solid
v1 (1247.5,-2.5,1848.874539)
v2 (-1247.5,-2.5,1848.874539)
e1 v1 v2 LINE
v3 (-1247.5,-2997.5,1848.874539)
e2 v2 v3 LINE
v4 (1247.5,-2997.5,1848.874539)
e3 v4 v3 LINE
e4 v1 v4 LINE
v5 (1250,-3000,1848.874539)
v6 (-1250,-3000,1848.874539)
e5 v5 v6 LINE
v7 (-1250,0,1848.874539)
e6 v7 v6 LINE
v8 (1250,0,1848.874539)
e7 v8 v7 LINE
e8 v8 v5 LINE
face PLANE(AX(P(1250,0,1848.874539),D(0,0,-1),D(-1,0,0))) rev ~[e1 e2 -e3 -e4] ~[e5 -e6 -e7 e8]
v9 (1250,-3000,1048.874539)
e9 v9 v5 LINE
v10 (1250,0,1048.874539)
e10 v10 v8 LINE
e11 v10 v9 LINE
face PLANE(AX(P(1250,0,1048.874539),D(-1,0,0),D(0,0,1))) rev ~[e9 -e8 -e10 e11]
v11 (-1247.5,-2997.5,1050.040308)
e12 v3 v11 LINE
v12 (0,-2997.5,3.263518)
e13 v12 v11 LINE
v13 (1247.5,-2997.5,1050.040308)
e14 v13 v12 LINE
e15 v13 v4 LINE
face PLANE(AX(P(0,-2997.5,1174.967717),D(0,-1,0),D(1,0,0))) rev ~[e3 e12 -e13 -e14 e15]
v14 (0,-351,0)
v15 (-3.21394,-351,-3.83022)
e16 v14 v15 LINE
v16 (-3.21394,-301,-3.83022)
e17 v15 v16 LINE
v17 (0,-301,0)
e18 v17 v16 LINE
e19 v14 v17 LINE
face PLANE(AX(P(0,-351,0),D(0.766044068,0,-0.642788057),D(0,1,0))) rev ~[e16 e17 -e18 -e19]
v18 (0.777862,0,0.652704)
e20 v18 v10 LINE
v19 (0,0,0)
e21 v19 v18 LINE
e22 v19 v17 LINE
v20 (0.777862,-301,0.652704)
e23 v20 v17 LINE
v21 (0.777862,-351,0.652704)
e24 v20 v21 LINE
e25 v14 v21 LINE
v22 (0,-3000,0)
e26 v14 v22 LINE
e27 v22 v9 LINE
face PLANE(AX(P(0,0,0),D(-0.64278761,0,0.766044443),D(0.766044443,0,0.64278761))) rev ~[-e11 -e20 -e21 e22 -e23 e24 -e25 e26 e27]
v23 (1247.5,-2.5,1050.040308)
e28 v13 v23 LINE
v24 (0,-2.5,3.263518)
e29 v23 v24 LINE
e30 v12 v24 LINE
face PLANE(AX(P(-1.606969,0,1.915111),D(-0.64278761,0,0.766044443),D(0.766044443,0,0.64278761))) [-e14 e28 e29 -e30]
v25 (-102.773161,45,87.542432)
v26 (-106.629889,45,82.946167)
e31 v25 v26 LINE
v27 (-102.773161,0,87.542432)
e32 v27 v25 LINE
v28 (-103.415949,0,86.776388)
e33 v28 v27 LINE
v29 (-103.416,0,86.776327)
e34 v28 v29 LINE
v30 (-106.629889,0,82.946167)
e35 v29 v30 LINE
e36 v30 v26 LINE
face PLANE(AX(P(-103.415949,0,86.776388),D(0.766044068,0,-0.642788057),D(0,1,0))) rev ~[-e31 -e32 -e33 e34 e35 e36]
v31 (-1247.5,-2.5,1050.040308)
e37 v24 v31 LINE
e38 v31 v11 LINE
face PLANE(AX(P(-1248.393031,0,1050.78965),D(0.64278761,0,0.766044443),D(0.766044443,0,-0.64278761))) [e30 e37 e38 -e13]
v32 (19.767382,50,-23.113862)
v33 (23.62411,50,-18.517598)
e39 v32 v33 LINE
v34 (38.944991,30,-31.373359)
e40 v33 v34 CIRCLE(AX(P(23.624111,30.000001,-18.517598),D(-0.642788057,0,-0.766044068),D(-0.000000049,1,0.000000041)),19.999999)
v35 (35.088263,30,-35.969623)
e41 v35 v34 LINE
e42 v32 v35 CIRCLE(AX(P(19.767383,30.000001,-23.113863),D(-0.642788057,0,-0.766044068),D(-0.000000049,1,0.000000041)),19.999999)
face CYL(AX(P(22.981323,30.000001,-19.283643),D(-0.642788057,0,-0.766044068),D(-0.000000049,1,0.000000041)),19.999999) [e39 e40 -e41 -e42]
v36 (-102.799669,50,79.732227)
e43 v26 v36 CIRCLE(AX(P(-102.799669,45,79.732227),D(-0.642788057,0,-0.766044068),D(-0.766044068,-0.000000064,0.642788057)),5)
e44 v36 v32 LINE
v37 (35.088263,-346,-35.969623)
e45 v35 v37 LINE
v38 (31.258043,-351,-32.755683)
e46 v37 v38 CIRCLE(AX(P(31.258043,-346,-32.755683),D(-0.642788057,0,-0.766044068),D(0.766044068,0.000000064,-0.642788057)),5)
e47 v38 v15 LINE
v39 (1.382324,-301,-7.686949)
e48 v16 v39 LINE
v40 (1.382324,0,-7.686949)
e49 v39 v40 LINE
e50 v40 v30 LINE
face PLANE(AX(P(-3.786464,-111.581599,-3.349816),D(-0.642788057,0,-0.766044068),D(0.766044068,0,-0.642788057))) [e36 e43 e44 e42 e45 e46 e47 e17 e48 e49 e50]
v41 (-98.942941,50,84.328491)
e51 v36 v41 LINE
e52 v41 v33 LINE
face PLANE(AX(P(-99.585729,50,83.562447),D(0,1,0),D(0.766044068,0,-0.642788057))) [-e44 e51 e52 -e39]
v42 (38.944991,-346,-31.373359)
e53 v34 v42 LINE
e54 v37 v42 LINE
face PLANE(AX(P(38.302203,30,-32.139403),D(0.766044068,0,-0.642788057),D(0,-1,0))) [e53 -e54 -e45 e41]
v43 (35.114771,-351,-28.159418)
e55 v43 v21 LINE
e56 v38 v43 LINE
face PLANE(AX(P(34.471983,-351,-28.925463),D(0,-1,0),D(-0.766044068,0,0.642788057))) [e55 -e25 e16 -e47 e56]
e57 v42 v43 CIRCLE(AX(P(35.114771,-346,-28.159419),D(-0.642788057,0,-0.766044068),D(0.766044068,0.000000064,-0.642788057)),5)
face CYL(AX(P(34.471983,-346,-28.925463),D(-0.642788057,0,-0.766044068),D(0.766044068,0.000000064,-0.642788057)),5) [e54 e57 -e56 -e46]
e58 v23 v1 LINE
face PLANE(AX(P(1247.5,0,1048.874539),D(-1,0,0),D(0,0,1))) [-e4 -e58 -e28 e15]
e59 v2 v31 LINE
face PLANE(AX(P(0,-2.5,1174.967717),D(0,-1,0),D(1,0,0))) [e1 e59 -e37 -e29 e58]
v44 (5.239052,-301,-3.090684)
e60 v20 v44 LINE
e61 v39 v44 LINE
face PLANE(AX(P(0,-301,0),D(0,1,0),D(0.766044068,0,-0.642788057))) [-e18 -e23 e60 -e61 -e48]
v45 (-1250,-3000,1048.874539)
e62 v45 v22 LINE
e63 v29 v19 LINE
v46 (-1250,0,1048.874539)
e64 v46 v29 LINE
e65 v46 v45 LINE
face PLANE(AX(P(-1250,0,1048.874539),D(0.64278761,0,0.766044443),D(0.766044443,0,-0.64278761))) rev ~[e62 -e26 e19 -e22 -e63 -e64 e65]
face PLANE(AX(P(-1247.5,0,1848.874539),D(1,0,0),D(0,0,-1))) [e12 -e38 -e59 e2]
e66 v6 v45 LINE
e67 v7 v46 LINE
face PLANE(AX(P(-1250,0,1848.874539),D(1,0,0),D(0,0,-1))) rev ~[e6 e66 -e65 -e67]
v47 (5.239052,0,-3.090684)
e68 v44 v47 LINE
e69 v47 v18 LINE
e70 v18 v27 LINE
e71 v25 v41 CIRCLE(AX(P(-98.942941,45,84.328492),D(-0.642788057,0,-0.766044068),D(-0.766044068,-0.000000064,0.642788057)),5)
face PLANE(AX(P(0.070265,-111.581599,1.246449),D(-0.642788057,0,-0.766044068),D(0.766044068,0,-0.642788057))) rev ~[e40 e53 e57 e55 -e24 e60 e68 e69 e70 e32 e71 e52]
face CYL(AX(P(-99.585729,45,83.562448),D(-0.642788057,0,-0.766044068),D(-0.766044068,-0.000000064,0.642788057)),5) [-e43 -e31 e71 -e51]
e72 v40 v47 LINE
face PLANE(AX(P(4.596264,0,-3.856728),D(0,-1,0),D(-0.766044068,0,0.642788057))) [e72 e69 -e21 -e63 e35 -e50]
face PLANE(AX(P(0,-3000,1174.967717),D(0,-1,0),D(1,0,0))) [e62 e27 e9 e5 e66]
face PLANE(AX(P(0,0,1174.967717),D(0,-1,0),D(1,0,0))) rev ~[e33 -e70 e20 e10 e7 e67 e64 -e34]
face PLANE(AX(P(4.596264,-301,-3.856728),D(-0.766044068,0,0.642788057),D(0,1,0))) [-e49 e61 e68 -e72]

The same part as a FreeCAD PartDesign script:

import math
import FreeCAD as App
import Part
import Sketcher
from FreeCAD import Vector
Q = App.Units.Quantity


def faces_at(feature, points):
    """Names of the faces that lie closest to the given points."""
    faces = feature.Shape.Faces
    near = lambda p: min(range(len(faces)), key=lambda i: faces[i].distToShape(Part.Vertex(*p))[0])
    return sorted({f"Face{near(p) + 1}" for p in points})


def add_polygon(sketch, points):
    """Adds a closed chain of lines whose ends are joined by coincident constraints."""
    first, n = sketch.GeometryCount, len(points)
    for a, b in zip(points, points[1:] + points[:1]):
        sketch.addGeometry(Part.LineSegment(App.Vector(*a, 0), App.Vector(*b, 0)), False)
    for i in range(n):
        sketch.addConstraint(Sketcher.Constraint("Coincident", first + i, 2, first + (i + 1) % n, 1))

doc = App.newDocument("Part")
params = doc.addObject("Spreadsheet::Sheet", "Params")
for row, (alias, value) in enumerate([
    ("sketch1_width", "2500 mm"),
    ("sketch1_height", "800 mm"),
    ("pad1_length", "3000 mm"),
    ("thickness_wall", "2.5 mm"),
    ("sketch2_radius", "5 mm"),
    ("sketch2_radius2", "19.999999 mm"),
    ("sketch2_width", "141 mm"),
    ("sketch2_width2", "160 mm"),
    ("sketch2_width3", "45 mm"),
    ("pad2_length", "5 mm"),
    ("pad2_length2", "1 mm"),
], start=1):
    params.set(f"A{row}", alias)
    params.set(f"B{row}", "=" + value)
    params.setAlias(f"B{row}", alias)

body = doc.addObject("PartDesign::Body", "Body")

# Sketch on XZ plane
sketch1 = body.newObject("Sketcher::SketchObject", "Sketch")
sketch1.AttachmentSupport = (doc.getObject("XZ_Plane"), [""])
sketch1.MapMode = "FlatFace"
add_polygon(sketch1, [(-1250, 1049), (0, 0), (1250, 1049), (1250, 1849), (-1250, 1849)])  # lines 0-4
sketch1.addConstraint([
    Sketcher.Constraint("Vertical", 2),
    Sketcher.Constraint("Horizontal", 3),
    Sketcher.Constraint("Vertical", 4),
    Sketcher.Constraint("Coincident", 0, 2, -1, 1),
    Sketcher.Constraint("Symmetric", 1, 2, 4, 2, -2),
    Sketcher.Constraint("DistanceX", 3, 2, 3, 1, 2500.0),
    Sketcher.Constraint("DistanceY", 2, 1, 2, 2, 800.0),
    Sketcher.Constraint("Angle", 0, Q("-40 deg")),
])
sketch1.setExpression("Constraints[10]", "Params.sketch1_width")
sketch1.setExpression("Constraints[11]", "Params.sketch1_height")
pad1 = body.newObject("PartDesign::Pad", "Pad")
pad1.Profile = sketch1
pad1.setExpression("Length", "Params.pad1_length")
doc.recompute()

thickness = body.newObject("PartDesign::Thickness", "Thickness")
thickness.Base = (pad1, faces_at(pad1, [(0, -1500, 1848.875)]))
thickness.setExpression("Value", "Params.thickness_wall")
thickness.Reversed = True
thickness.Join = "Arc"

# Sketch on an angled plane
sketch2 = body.newObject("Sketcher::SketchObject", "Sketch001")
sketch2.Placement = App.Placement(Vector(0, 0, 0), App.Rotation(Vector(0.766044068, 0, -0.642788057), Vector(0, -1, 0), Vector(-0.642788057, 0, -0.766044068), "ZXY"))
sketch2.addGeometry([
    Part.LineSegment(Vector(6, 0, 0), Vector(-135, 0, 0)),  # 0
    Part.LineSegment(Vector(-135, 0, 0), Vector(-135, -45, 0)),  # 1
    Part.ArcOfCircle(Part.Circle(Vector(-130, -45, 0), Vector(0, 0, 1), 5), math.radians(180), math.radians(270)),  # 2
    Part.LineSegment(Vector(-130, -50, 0), Vector(30, -50, 0)),  # 3
    Part.ArcOfCircle(Part.Circle(Vector(30, -30, 0), Vector(0, 0, 1), 20), math.radians(-90), math.radians(0)),  # 4
    Part.LineSegment(Vector(50, -30, 0), Vector(50, 346, 0)),  # 5
    Part.ArcOfCircle(Part.Circle(Vector(45, 346, 0), Vector(0, 0, 1), 5), math.radians(0), math.radians(90)),  # 6
    Part.LineSegment(Vector(45, 351, 0), Vector(0, 351, 0)),  # 7
    Part.LineSegment(Vector(0, 351, 0), Vector(0, 301, 0)),  # 8
    Part.LineSegment(Vector(0, 301, 0), Vector(6, 301, 0)),  # 9
    Part.LineSegment(Vector(6, 301, 0), Vector(6, 0, 0)),  # 10
], False)
sketch2.addConstraint([
    Sketcher.Constraint("Coincident", 0, 2, 1, 1),
    Sketcher.Constraint("Tangent", 1, 2, 2, 1),
    Sketcher.Constraint("Tangent", 2, 2, 3, 1),
    Sketcher.Constraint("Tangent", 3, 2, 4, 1),
    Sketcher.Constraint("Tangent", 4, 2, 5, 1),
    Sketcher.Constraint("Tangent", 5, 2, 6, 1),
    Sketcher.Constraint("Tangent", 6, 2, 7, 1),
    Sketcher.Constraint("Coincident", 7, 2, 8, 1),
    Sketcher.Constraint("Coincident", 8, 2, 9, 1),
    Sketcher.Constraint("Coincident", 9, 2, 10, 1),
    Sketcher.Constraint("Coincident", 10, 2, 0, 1),
    Sketcher.Constraint("Horizontal", 0),
    Sketcher.Constraint("Vertical", 1),
    Sketcher.Constraint("Horizontal", 3),
    Sketcher.Constraint("Vertical", 5),
    Sketcher.Constraint("Horizontal", 7),
    Sketcher.Constraint("Vertical", 8),
    Sketcher.Constraint("Horizontal", 9),
    Sketcher.Constraint("Vertical", 10),
    Sketcher.Constraint("Equal", 2, 6),
    Sketcher.Constraint("PointOnObject", 0, 2, -1),
    Sketcher.Constraint("PointOnObject", 7, 2, -2),
    Sketcher.Constraint("Equal", 7, 1),
    Sketcher.Constraint("Radius", 2, 5.0),
    Sketcher.Constraint("Radius", 4, 19.999999),
    Sketcher.Constraint("DistanceX", 0, 2, 0, 1, 141.0),
    Sketcher.Constraint("DistanceX", 3, 1, 3, 2, 160.0),
    Sketcher.Constraint("DistanceX", 7, 2, 7, 1, 45.0),
    Sketcher.Constraint("DistanceY", 5, 1, 5, 2, 376.0),
    Sketcher.Constraint("DistanceY", 8, 2, 8, 1, 50.0),
])
sketch2.setExpression("Constraints[23]", "Params.sketch2_radius")
sketch2.setExpression("Constraints[24]", "Params.sketch2_radius2")
sketch2.setExpression("Constraints[25]", "Params.sketch2_width")
sketch2.setExpression("Constraints[26]", "Params.sketch2_width2")
sketch2.setExpression("Constraints[27]", "Params.sketch2_width3")
pad2 = body.newObject("PartDesign::Pad", "Pad001")
pad2.Profile = sketch2
pad2.Type = "TwoLengths"
pad2.setExpression("Length", "Params.pad2_length")
pad2.setExpression("Length2", "Params.pad2_length2")

doc.recompute()
